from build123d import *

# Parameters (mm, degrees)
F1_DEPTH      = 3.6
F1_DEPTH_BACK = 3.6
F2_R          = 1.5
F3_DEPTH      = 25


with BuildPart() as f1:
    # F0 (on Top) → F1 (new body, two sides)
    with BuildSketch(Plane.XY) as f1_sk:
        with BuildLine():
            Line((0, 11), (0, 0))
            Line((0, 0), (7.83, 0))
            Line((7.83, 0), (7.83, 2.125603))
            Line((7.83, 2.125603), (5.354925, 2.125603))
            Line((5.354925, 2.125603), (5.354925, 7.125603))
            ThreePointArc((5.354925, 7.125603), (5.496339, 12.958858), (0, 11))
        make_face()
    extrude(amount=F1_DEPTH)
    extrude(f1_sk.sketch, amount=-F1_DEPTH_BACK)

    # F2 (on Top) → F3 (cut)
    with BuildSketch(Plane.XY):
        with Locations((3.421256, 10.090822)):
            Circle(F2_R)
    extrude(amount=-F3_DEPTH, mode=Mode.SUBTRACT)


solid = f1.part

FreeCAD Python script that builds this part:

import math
import FreeCAD as App
import Part
import Sketcher

V = App.Vector
Q = App.Units.Quantity

doc = App.newDocument("Part")
body = doc.addObject("PartDesign::Body", "Body")

# Sketch on XY plane
sketch1 = doc.addObject("Sketcher::SketchObject", "Sketch")
body.addObject(sketch1)
sketch1.AttachmentSupport = (doc.XY_Plane, [""])
sketch1.MapMode = "FlatFace"
sketch1.addGeometry([
    Part.LineSegment(V(0, 11, 0), V(0, 0, 0)),  # 0
    Part.LineSegment(V(0, 0, 0), V(7.83, 0, 0)),  # 1
    Part.LineSegment(V(7.83, 0, 0), V(7.83, 2.125603, 0)),  # 2
    Part.LineSegment(V(7.83, 2.125603, 0), V(5.354925, 2.125603, 0)),  # 3
    Part.LineSegment(V(5.354925, 2.125603, 0), V(5.354925, 7.125603, 0)),  # 4
    Part.ArcOfCircle(Part.Circle(V(3.421256, 10.090822, 0), V(0, 0, 1), 3.54), math.radians(-56.890959), math.radians(165.117955)),  # 5
], False)
sketch1.addConstraint([
    Sketcher.Constraint("Coincident", 0, 2, 1, 1),
    Sketcher.Constraint("Coincident", 1, 2, 2, 1),
    Sketcher.Constraint("Coincident", 2, 2, 3, 1),
    Sketcher.Constraint("Coincident", 3, 2, 4, 1),
    Sketcher.Constraint("Coincident", 4, 2, 5, 1),
    Sketcher.Constraint("Coincident", 5, 2, 0, 1),
    Sketcher.Constraint("Vertical", 0),
    Sketcher.Constraint("Horizontal", 1),
    Sketcher.Constraint("Vertical", 2),
    Sketcher.Constraint("Horizontal", 3),
    Sketcher.Constraint("Vertical", 4),
    Sketcher.Constraint("Coincident", 0, 2, -1, 1),
    Sketcher.Constraint("DistanceY", 0, 2, 0, 1, Q("11 mm")),
    Sketcher.Constraint("DistanceY", 4, 1, 4, 2, Q("5 mm")),
    Sketcher.Constraint("Radius", 5, Q("3.54 mm")),
    Sketcher.Constraint("DistanceX", 1, 1, 1, 2, Q("7.83 mm")),
    Sketcher.Constraint("DistanceX", 3, 2, 3, 1, Q("2.475075 mm")),
    Sketcher.Constraint("DistanceY", 2, 1, 2, 2, Q("2.125603 mm")),
])
pad1 = doc.addObject("PartDesign::Pad", "Pad")
body.addObject(pad1)
pad1.Profile = sketch1
pad1.Type = "TwoLengths"
pad1.Length = 3.6
pad1.Length2 = 3.6

# Sketch on XY plane
sketch2 = doc.addObject("Sketcher::SketchObject", "Sketch001")
body.addObject(sketch2)
sketch2.AttachmentSupport = (doc.XY_Plane, [""])
sketch2.MapMode = "FlatFace"
sketch2.addGeometry(Part.Circle(V(3.421256, 10.090822, 0), V(0, 0, 1), 1.5), False)
sketch2.addConstraint([
    Sketcher.Constraint("Diameter", 0, Q("3 mm")),
    Sketcher.Constraint("DistanceY", -1, 1, 0, 3, Q("10.090822 mm")),
    Sketcher.Constraint("DistanceX", -1, 1, 0, 3, Q("3.421256 mm")),
])
pocket1 = doc.addObject("PartDesign::Pocket", "Pocket")
body.addObject(pocket1)
pocket1.Profile = sketch2
pocket1.Length = 25

doc.recompute()
